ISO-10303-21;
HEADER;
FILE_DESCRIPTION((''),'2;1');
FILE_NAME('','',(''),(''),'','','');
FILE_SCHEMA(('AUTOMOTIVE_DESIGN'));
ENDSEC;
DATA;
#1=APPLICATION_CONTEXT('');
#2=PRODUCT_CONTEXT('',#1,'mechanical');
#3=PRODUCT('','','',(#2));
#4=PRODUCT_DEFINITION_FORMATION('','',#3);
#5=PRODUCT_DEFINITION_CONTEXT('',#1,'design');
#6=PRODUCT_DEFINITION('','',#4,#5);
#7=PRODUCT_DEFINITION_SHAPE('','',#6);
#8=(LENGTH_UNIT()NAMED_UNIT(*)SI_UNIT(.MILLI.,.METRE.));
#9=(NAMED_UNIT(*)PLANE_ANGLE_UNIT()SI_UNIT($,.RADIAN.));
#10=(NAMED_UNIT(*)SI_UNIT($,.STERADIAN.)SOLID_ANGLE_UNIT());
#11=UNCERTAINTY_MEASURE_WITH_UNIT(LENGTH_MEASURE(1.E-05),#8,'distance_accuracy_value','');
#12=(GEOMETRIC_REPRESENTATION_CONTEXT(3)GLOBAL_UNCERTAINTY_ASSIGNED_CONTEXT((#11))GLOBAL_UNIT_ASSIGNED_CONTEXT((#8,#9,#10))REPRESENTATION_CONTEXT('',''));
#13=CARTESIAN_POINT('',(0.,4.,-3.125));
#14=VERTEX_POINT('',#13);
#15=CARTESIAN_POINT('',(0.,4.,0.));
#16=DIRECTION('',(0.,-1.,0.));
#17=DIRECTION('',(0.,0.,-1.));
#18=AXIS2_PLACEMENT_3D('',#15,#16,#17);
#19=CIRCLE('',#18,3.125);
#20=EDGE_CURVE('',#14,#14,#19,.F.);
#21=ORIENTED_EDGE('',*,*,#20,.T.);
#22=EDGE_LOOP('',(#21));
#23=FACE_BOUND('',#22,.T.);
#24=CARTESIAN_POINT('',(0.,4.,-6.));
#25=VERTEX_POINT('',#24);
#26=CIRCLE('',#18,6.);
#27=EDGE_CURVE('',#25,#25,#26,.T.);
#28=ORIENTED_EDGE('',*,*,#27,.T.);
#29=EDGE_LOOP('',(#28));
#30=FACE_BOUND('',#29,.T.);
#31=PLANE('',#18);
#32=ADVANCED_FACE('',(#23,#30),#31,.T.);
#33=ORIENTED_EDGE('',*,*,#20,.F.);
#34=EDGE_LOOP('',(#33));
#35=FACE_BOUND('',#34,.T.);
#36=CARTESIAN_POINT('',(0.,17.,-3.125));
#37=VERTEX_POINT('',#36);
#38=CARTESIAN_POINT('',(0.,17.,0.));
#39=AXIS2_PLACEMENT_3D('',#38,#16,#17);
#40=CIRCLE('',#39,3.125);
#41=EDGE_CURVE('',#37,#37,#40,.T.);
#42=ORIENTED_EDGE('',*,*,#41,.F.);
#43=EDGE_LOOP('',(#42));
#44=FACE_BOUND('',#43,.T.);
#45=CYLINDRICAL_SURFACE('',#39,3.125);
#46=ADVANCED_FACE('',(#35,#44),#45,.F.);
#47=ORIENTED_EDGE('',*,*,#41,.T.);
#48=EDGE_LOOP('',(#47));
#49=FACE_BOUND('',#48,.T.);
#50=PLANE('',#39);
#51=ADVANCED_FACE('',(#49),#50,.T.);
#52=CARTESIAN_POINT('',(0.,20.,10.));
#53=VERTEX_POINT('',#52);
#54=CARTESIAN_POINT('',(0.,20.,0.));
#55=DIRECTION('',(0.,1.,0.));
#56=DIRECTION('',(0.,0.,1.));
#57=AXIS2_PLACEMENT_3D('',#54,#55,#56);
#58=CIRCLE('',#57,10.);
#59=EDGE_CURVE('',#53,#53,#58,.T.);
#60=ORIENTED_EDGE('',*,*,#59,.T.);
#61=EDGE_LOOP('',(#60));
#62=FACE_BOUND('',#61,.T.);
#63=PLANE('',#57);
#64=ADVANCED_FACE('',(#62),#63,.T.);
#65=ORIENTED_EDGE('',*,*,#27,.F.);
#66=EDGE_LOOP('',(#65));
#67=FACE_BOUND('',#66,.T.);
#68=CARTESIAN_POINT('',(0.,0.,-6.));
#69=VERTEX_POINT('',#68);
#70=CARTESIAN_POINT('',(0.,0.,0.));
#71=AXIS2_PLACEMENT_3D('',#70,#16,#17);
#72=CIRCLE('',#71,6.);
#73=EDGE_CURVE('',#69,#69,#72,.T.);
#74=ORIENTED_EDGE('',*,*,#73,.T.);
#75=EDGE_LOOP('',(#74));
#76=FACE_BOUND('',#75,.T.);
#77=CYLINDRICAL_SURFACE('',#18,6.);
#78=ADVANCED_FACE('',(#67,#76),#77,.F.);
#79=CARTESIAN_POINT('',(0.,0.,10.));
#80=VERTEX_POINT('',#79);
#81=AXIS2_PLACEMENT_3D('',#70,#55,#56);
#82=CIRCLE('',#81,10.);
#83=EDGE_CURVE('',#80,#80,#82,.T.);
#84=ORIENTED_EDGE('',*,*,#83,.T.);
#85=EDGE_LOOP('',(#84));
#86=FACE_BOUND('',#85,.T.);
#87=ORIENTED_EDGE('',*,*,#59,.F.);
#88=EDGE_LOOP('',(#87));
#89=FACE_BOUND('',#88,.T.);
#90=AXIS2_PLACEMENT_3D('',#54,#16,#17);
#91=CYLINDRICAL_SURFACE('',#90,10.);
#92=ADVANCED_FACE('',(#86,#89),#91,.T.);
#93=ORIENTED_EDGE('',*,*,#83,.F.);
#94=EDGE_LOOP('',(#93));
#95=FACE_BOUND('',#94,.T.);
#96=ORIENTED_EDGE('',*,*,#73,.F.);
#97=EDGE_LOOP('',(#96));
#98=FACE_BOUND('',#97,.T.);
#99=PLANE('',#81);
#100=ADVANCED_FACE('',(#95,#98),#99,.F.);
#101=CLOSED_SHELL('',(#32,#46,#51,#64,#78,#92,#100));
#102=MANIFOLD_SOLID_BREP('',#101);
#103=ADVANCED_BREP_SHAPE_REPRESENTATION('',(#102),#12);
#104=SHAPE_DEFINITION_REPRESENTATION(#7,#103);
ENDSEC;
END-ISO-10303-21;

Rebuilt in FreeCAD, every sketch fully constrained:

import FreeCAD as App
import Part
import Sketcher

doc = App.newDocument("Part")
body = doc.addObject("PartDesign::Body", "Body")

# Sketch on XZ plane
sketch1 = body.newObject("Sketcher::SketchObject", "Sketch")
sketch1.AttachmentSupport = (doc.getObject("XZ_Plane"), [""])
sketch1.MapMode = "FlatFace"
sketch1.addGeometry(Part.Circle(App.Vector(0, 0, 0), App.Vector(0, 0, 1), 10), False)
sketch1.addConstraint([
    Sketcher.Constraint("Coincident", 0, 3, -1, 1),
    Sketcher.Constraint("Diameter", 0, 20.0),
])
pad1 = body.newObject("PartDesign::Pad", "Pad")
pad1.Profile = sketch1
pad1.Length = 20
pad1.Reversed = True

# Sketch on XZ plane
sketch2 = body.newObject("Sketcher::SketchObject", "Sketch001")
sketch2.AttachmentSupport = (doc.getObject("XZ_Plane"), [""])
sketch2.MapMode = "FlatFace"
sketch2.addGeometry(Part.Circle(App.Vector(0, 0, 0), App.Vector(0, 0, 1), 3.1), False)
sketch2.addConstraint([
    Sketcher.Constraint("Coincident", 0, 3, -1, 1),
    Sketcher.Constraint("Diameter", 0, 6.25),
])
pocket1 = body.newObject("PartDesign::Pocket", "Pocket")
pocket1.Profile = sketch2
pocket1.Length = 17

# Sketch on XZ plane
sketch3 = body.newObject("Sketcher::SketchObject", "Sketch002")
sketch3.AttachmentSupport = (doc.getObject("XZ_Plane"), [""])
sketch3.MapMode = "FlatFace"
sketch3.addGeometry(Part.Circle(App.Vector(0, 0, 0), App.Vector(0, 0, 1), 6), False)
sketch3.addConstraint([
    Sketcher.Constraint("Coincident", 0, 3, -1, 1),
    Sketcher.Constraint("Diameter", 0, 12.0),
])
pocket2 = body.newObject("PartDesign::Pocket", "Pocket001")
pocket2.Profile = sketch3
pocket2.Length = 4

doc.recompute()
